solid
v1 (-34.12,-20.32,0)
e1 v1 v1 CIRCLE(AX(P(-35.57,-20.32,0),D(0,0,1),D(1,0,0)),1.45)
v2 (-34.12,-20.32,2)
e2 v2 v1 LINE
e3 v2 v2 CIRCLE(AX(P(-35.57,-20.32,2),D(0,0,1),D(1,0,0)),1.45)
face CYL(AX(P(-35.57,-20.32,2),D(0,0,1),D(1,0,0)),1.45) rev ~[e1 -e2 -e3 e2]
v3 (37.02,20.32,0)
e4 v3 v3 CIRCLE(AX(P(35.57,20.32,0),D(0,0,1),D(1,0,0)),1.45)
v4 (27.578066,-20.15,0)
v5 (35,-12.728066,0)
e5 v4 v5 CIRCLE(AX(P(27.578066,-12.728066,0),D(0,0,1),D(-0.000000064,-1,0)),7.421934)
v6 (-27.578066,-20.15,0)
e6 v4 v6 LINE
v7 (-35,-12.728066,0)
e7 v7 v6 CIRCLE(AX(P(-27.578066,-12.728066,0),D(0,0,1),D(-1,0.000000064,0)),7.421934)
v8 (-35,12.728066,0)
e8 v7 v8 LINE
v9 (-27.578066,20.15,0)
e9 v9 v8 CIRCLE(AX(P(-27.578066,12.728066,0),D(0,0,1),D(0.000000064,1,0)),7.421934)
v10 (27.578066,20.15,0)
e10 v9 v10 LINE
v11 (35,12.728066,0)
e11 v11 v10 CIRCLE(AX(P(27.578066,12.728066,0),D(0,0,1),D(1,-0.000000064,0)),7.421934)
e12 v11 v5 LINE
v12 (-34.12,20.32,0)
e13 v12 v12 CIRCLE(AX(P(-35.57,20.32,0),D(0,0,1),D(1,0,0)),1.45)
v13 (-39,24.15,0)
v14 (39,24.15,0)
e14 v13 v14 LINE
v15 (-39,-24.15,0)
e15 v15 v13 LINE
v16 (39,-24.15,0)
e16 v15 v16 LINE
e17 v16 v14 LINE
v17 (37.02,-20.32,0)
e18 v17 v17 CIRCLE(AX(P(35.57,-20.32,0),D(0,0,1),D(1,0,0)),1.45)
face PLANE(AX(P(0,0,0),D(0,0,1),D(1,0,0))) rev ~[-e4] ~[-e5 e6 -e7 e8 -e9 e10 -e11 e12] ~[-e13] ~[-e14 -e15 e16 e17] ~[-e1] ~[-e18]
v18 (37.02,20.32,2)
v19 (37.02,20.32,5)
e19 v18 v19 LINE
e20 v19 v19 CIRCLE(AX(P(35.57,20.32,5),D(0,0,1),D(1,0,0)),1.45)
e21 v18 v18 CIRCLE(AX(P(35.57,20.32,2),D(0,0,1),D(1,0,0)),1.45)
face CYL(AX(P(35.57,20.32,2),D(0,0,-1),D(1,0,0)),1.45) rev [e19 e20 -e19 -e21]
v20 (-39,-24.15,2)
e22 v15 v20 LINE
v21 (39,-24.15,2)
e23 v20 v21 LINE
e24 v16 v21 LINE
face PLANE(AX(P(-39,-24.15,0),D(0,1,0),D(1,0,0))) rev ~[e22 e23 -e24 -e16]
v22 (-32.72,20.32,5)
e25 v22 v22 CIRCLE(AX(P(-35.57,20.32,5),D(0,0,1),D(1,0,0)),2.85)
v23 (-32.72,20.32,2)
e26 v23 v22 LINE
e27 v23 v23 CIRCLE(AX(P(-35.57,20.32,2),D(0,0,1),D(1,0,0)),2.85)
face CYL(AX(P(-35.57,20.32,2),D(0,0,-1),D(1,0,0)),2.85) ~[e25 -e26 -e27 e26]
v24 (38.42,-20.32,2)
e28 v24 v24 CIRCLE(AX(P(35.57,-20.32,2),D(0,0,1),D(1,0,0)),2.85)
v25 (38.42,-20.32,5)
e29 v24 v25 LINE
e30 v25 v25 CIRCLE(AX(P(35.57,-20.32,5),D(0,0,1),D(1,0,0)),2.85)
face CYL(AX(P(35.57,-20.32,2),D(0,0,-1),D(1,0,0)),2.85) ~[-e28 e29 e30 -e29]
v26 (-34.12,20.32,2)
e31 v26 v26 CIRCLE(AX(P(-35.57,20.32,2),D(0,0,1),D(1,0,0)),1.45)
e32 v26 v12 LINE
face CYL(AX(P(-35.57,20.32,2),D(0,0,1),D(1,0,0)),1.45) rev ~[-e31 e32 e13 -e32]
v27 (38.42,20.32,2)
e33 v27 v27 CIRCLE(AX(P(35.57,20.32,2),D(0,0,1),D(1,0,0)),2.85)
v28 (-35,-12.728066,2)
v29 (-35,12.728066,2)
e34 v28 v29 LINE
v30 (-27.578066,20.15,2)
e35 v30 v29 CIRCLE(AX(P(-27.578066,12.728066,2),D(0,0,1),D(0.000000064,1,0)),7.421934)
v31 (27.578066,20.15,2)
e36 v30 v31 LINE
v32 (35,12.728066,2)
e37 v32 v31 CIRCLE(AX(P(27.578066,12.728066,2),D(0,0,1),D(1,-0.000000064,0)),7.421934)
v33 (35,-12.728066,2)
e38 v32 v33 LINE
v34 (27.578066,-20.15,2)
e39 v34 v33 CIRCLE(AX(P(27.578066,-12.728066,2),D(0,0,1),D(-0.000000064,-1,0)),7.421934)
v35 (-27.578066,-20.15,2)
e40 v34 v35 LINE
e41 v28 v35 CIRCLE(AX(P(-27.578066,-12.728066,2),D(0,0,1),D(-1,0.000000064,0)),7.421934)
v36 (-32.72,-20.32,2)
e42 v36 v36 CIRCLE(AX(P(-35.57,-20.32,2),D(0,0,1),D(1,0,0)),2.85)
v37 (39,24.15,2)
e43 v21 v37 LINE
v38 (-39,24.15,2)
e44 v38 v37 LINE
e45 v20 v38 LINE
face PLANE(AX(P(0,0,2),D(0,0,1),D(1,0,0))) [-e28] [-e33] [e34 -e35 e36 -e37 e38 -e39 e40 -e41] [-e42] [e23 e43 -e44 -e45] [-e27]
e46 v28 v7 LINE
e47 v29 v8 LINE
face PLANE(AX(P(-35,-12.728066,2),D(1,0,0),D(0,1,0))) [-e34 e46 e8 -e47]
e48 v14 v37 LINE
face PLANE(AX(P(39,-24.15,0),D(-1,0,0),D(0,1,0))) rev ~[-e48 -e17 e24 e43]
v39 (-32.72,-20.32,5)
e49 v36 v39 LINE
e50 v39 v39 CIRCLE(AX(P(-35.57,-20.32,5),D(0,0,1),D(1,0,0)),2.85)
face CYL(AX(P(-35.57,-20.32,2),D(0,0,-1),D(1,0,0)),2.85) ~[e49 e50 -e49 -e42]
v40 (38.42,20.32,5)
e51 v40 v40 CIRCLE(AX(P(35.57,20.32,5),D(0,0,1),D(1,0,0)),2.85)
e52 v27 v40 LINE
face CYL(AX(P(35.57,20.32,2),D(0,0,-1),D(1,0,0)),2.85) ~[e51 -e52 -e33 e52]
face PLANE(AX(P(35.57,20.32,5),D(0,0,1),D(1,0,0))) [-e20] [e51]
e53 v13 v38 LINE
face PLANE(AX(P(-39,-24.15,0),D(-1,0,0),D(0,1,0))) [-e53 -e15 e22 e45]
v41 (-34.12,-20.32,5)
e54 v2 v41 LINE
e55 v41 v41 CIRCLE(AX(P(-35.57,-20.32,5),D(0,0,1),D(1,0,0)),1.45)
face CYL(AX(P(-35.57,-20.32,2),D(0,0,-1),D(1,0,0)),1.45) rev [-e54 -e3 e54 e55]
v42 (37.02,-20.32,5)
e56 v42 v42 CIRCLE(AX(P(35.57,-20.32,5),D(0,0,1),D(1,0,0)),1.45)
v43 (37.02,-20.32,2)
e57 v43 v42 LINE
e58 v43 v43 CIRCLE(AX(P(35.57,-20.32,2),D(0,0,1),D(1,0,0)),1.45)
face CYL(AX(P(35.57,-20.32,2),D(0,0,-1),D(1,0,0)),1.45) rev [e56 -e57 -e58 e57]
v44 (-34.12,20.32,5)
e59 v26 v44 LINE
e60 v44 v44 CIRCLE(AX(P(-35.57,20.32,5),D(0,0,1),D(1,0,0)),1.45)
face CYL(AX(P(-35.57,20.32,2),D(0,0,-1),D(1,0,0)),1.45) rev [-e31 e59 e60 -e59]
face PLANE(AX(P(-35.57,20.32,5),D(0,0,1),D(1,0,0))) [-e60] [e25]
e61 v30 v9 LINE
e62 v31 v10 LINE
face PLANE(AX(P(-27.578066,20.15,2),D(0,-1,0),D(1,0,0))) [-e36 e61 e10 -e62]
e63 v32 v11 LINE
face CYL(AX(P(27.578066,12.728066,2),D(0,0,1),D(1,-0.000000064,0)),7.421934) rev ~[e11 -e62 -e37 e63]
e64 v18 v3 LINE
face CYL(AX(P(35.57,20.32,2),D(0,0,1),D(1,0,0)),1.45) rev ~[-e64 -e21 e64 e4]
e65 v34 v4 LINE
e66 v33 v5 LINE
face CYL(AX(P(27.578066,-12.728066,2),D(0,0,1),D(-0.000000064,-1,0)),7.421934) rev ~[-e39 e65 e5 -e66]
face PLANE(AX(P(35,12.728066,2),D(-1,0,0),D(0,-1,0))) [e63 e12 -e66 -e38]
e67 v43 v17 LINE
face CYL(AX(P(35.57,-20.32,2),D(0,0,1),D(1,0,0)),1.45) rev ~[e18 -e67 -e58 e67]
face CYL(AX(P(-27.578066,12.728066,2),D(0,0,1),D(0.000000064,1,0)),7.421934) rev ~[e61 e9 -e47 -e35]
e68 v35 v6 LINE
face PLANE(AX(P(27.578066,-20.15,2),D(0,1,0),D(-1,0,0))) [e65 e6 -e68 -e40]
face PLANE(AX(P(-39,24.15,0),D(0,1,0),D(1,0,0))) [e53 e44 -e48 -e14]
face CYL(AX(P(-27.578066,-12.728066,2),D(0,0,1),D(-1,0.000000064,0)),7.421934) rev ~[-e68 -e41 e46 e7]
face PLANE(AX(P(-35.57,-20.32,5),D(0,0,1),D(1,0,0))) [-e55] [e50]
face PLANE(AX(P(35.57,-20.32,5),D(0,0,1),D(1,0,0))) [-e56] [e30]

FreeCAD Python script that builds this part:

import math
import FreeCAD as App
import Part
import Sketcher
from FreeCAD import Vector

doc = App.newDocument("Part")
body = doc.addObject("PartDesign::Body", "Body")

# Sketch on XY plane
sketch1 = doc.addObject("Sketcher::SketchObject", "Sketch")
body.addObject(sketch1)
sketch1.AttachmentSupport = (doc.XY_Plane, [""])
sketch1.MapMode = "FlatFace"
sketch1.addGeometry([
    Part.LineSegment(Vector(-39, 24, 0), Vector(-39, -24, 0)),
    Part.LineSegment(Vector(-39, -24, 0), Vector(39, -24, 0)),
    Part.LineSegment(Vector(39, -24, 0), Vector(39, 24, 0)),
    Part.LineSegment(Vector(39, 24, 0), Vector(-39, 24, 0)),
], False)
sketch1.addConstraint([
    Sketcher.Constraint("Coincident", 0, 2, 1, 1),
    Sketcher.Constraint("Coincident", 1, 2, 2, 1),
    Sketcher.Constraint("Coincident", 2, 2, 3, 1),
    Sketcher.Constraint("Coincident", 3, 2, 0, 1),
    Sketcher.Constraint("Vertical", 0),
    Sketcher.Constraint("Horizontal", 1),
    Sketcher.Constraint("Vertical", 2),
    Sketcher.Constraint("Horizontal", 3),
    Sketcher.Constraint("Symmetric", 0, 2, 2, 2, -1, 1),
    Sketcher.Constraint("DistanceX", 1, 1, 1, 2, 78.0),
    Sketcher.Constraint("DistanceY", 0, 2, 0, 1, 48.3),
])
pad1 = doc.addObject("PartDesign::Pad", "Pad")
body.addObject(pad1)
pad1.Profile = sketch1
pad1.Length = 2

# Sketch on XY plane
sketch2 = doc.addObject("Sketcher::SketchObject", "Sketch001")
body.addObject(sketch2)
sketch2.AttachmentSupport = (doc.XY_Plane, [""])
sketch2.MapMode = "FlatFace"
sketch2.AttachmentOffset = App.Placement(Vector(0, 0, 2), App.Rotation())
sketch2.addGeometry([
    Part.Circle(Vector(-35.6, 20.3, 0), Vector(0, 0, 1), 1.4),
    Part.Circle(Vector(35.6, 20.3, 0), Vector(0, 0, 1), 1.4),
    Part.Circle(Vector(-35.6, -20.3, 0), Vector(0, 0, 1), 1.4),
    Part.Circle(Vector(35.6, -20.3, 0), Vector(0, 0, 1), 1.4),
], False)
sketch2.addConstraint([
    Sketcher.Constraint("Equal", 0, 1),
    Sketcher.Constraint("Equal", 1, 2),
    Sketcher.Constraint("Equal", 2, 3),
    Sketcher.Constraint("Symmetric", 1, 3, 2, 3, -1, 1),
    Sketcher.Constraint("Symmetric", 0, 3, 3, 3, -1, 1),
    Sketcher.Constraint("Symmetric", 0, 3, 1, 3, -2),
    Sketcher.Constraint("Diameter", 0, 2.9),
    Sketcher.Constraint("DistanceX", 0, 3, -1, 1, 35.57),
    Sketcher.Constraint("DistanceY", -1, 1, 0, 3, 20.32),
])
pocket1 = doc.addObject("PartDesign::Pocket", "Pocket")
body.addObject(pocket1)
pocket1.Profile = sketch2
pocket1.Type = "ThroughAll"

# Sketch on XY plane
sketch3 = doc.addObject("Sketcher::SketchObject", "Sketch002")
body.addObject(sketch3)
sketch3.AttachmentSupport = (doc.XY_Plane, [""])
sketch3.MapMode = "FlatFace"
sketch3.AttachmentOffset = App.Placement(Vector(0, 0, 2), App.Rotation())
sketch3.addGeometry([
    Part.Circle(Vector(-35.6, 20.3, 0), Vector(0, 0, 1), 2.9),  # 0
    Part.Circle(Vector(-35.6, 20.3, 0), Vector(0, 0, 1), 1.4),  # 1
    Part.Circle(Vector(35.6, 20.3, 0), Vector(0, 0, 1), 2.9),  # 2
    Part.Circle(Vector(35.6, 20.3, 0), Vector(0, 0, 1), 1.4),  # 3
    Part.Circle(Vector(35.6, -20.3, 0), Vector(0, 0, 1), 2.9),  # 4
    Part.Circle(Vector(35.6, -20.3, 0), Vector(0, 0, 1), 1.4),  # 5
    Part.Circle(Vector(-35.6, -20.3, 0), Vector(0, 0, 1), 2.9),  # 6
    Part.Circle(Vector(-35.6, -20.3, 0), Vector(0, 0, 1), 1.4),  # 7
], False)
sketch3.addConstraint([
    Sketcher.Constraint("Coincident", 1, 3, 0, 3),
    Sketcher.Constraint("Coincident", 3, 3, 2, 3),
    Sketcher.Constraint("Coincident", 5, 3, 4, 3),
    Sketcher.Constraint("Coincident", 7, 3, 6, 3),
    Sketcher.Constraint("Equal", 0, 2),
    Sketcher.Constraint("Equal", 1, 3),
    Sketcher.Constraint("Equal", 2, 4),
    Sketcher.Constraint("Equal", 3, 5),
    Sketcher.Constraint("Equal", 4, 6),
    Sketcher.Constraint("Equal", 5, 7),
    Sketcher.Constraint("Symmetric", 0, 3, 4, 3, -1, 1),
    Sketcher.Constraint("Symmetric", 2, 3, 6, 3, -1, 1),
    Sketcher.Constraint("Symmetric", 0, 3, 2, 3, -2),
    Sketcher.Constraint("Diameter", 0, 5.7),
    Sketcher.Constraint("Diameter", 1, 2.9),
    Sketcher.Constraint("DistanceX", 0, 3, -1, 1, 35.57),
    Sketcher.Constraint("DistanceY", -1, 1, 0, 3, 20.32),
])
pad2 = doc.addObject("PartDesign::Pad", "Pad001")
body.addObject(pad2)
pad2.Profile = sketch3
pad2.Length = 3

# Sketch on XY plane
sketch4 = doc.addObject("Sketcher::SketchObject", "Sketch003")
body.addObject(sketch4)
sketch4.AttachmentSupport = (doc.XY_Plane, [""])
sketch4.MapMode = "FlatFace"
sketch4.AttachmentOffset = App.Placement(Vector(0, 0, 2), App.Rotation())
sketch4.addGeometry([
    Part.LineSegment(Vector(28, 20, 0), Vector(-28, 20, 0)),  # 0
    Part.ArcOfCircle(Part.Circle(Vector(-28, 13, 0), Vector(0, 0, 1), 7), math.radians(90), math.radians(180)),  # 1
    Part.LineSegment(Vector(-35, 13, 0), Vector(-35, -13, 0)),  # 2
    Part.ArcOfCircle(Part.Circle(Vector(-28, -13, 0), Vector(0, 0, 1), 7), math.radians(180), math.radians(270)),  # 3
    Part.LineSegment(Vector(-28, -20, 0), Vector(28, -20, 0)),  # 4
    Part.ArcOfCircle(Part.Circle(Vector(28, -13, 0), Vector(0, 0, 1), 7), math.radians(-90), math.radians(0)),  # 5
    Part.LineSegment(Vector(35, -13, 0), Vector(35, 13, 0)),  # 6
    Part.ArcOfCircle(Part.Circle(Vector(28, 13, 0), Vector(0, 0, 1), 7), math.radians(0), math.radians(90)),  # 7
], False)
sketch4.addConstraint([
    Sketcher.Constraint("Tangent", 0, 2, 1, 1),
    Sketcher.Constraint("Tangent", 1, 2, 2, 1),
    Sketcher.Constraint("Tangent", 2, 2, 3, 1),
    Sketcher.Constraint("Tangent", 3, 2, 4, 1),
    Sketcher.Constraint("Tangent", 4, 2, 5, 1),
    Sketcher.Constraint("Tangent", 5, 2, 6, 1),
    Sketcher.Constraint("Tangent", 6, 2, 7, 1),
    Sketcher.Constraint("Tangent", 7, 2, 0, 1),
    Sketcher.Constraint("Horizontal", 0),
    Sketcher.Constraint("Vertical", 2),
    Sketcher.Constraint("Horizontal", 4),
    Sketcher.Constraint("Vertical", 6),
    Sketcher.Constraint("Equal", 1, 3),
    Sketcher.Constraint("Equal", 3, 5),
    Sketcher.Constraint("Equal", 5, 7),
    Sketcher.Constraint("Symmetric", 1, 3, 5, 3, -1, 1),
    Sketcher.Constraint("DistanceX", 1, 2, -1, 1, 35.0),
    Sketcher.Constraint("DistanceY", 3, 2, 0, 2, 40.3),
    Sketcher.Constraint("Radius", 1, 7.421934),
])
pocket2 = doc.addObject("PartDesign::Pocket", "Pocket001")
body.addObject(pocket2)
pocket2.Profile = sketch4
pocket2.Type = "ThroughAll"

doc.recompute()
